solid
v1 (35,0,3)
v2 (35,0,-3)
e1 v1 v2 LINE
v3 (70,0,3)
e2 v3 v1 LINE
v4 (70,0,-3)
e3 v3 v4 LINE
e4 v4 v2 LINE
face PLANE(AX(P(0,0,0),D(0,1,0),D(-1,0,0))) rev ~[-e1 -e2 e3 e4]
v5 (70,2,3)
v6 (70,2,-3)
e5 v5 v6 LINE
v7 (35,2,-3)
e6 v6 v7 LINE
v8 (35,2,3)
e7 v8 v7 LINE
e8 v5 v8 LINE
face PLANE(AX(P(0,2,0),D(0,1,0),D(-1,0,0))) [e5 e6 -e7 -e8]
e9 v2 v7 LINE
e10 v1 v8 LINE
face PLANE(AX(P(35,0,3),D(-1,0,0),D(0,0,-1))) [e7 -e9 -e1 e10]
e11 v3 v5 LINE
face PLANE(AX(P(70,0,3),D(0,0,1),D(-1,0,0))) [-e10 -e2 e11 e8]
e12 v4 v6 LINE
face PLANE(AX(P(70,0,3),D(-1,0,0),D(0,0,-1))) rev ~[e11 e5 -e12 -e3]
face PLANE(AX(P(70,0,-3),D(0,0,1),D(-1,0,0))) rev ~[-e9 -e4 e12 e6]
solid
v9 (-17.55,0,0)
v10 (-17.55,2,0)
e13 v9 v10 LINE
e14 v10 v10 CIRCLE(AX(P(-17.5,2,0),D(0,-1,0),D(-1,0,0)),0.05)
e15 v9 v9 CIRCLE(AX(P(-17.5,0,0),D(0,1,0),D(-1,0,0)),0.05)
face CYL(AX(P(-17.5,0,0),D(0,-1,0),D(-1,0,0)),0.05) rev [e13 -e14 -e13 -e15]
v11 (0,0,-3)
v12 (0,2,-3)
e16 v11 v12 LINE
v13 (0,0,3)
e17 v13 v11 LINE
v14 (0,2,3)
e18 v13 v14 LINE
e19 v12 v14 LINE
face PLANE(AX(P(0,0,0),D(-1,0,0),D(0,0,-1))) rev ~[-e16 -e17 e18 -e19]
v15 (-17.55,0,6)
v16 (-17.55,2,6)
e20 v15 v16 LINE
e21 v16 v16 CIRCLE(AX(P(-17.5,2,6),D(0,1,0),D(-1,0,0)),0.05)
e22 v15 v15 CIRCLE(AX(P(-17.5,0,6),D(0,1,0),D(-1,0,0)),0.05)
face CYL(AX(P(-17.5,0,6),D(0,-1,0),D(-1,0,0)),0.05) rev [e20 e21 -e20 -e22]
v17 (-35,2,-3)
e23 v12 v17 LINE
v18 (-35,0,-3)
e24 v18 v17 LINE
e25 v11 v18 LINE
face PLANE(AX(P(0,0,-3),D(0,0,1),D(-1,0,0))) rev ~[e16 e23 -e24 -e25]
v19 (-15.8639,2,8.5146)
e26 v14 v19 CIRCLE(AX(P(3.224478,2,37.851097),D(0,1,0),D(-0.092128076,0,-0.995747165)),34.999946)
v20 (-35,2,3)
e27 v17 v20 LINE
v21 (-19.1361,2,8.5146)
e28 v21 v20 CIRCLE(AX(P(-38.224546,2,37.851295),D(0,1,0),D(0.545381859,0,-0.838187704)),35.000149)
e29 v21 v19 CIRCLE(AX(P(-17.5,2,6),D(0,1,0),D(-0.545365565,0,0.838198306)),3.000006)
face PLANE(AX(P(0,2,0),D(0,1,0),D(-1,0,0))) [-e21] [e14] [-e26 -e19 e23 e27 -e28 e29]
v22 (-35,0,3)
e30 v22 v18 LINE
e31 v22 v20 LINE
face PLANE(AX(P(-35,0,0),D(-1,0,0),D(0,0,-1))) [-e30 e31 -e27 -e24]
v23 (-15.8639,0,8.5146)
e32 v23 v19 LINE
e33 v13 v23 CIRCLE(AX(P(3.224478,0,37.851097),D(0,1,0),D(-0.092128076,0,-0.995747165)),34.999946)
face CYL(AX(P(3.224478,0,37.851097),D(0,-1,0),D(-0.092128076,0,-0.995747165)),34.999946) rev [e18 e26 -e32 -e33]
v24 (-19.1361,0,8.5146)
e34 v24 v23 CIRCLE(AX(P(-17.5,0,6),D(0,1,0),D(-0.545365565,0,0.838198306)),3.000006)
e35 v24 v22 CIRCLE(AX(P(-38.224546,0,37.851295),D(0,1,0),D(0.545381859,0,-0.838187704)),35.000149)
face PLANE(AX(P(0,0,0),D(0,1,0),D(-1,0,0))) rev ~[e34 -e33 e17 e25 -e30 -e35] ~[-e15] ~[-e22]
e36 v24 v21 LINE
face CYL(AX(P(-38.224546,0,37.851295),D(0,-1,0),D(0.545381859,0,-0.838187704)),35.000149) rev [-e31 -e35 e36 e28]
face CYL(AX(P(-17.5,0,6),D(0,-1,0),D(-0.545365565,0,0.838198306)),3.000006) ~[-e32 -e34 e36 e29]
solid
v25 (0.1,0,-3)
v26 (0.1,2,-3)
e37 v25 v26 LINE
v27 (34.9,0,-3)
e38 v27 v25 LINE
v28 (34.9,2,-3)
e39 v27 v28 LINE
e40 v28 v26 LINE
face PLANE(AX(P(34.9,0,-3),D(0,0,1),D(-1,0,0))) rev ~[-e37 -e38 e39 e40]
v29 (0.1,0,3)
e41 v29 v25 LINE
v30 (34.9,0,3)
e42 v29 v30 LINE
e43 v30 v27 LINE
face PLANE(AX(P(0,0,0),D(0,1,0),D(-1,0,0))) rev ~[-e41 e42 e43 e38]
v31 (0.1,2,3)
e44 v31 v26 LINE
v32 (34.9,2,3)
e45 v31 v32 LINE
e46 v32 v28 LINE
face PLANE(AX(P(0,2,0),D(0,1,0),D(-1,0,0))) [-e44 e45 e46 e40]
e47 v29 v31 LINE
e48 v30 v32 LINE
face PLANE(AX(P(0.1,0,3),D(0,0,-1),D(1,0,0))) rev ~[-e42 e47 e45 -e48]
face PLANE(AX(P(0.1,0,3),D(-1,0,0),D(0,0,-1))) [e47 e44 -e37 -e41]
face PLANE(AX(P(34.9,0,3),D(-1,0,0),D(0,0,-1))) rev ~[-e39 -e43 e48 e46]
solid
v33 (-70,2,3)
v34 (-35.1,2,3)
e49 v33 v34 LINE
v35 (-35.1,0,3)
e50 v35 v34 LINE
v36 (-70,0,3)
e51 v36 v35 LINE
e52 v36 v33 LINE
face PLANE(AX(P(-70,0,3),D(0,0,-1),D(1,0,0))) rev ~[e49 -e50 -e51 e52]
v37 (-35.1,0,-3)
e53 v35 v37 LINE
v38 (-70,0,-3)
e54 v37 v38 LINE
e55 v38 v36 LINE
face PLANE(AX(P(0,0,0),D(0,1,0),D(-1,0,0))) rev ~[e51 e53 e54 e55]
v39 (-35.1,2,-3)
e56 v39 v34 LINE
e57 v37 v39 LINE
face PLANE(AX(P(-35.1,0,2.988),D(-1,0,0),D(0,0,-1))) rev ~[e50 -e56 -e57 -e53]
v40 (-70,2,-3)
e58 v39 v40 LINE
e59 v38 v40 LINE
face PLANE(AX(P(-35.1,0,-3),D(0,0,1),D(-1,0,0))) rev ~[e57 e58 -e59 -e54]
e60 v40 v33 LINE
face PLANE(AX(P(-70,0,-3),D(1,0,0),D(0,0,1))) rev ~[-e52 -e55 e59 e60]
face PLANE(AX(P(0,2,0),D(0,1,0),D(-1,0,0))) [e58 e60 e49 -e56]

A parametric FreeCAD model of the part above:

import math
import FreeCAD as App
import Part
import Sketcher

V = App.Vector
Q = App.Units.Quantity

doc = App.newDocument("Part")
body = doc.addObject("PartDesign::Body", "Body")
body.AllowCompound = True

sketch1 = body.newObject("Sketcher::SketchObject", "Sketch")
sketch1.AttachmentSupport = (doc.getObject("XZ_Plane"), [""])
sketch1.MapMode = "FlatFace"
sketch1.addGeometry([
    Part.LineSegment(V(35, 3, 0), V(70, 3, 0)),
    Part.LineSegment(V(70, 3, 0), V(70, -3, 0)),
    Part.LineSegment(V(70, -3, 0), V(35, -3, 0)),
    Part.LineSegment(V(35, -3, 0), V(35, 3, 0)),
    Part.LineSegment(V(-35.1, 3, 0), V(-35.1, -3, 0)),
    Part.LineSegment(V(-35.1, -3, 0), V(-70, -3, 0)),
    Part.LineSegment(V(-70, -3, 0), V(-70, 3, 0)),
    Part.LineSegment(V(-70, 3, 0), V(-35.1, 3, 0)),
    Part.LineSegment(V(0, -3, 0), V(-35, -3, 0)),
    Part.LineSegment(V(-35, -3, 0), V(-35, 3, 0)),
    Part.ArcOfCircle(Part.Circle(V(-38.22, 37.85, 0), V(0, 0, 1), 35), math.radians(-85), math.radians(-57)),
    Part.ArcOfCircle(Part.Circle(V(-17.5, 6, 0), V(0, 0, 1), 3), math.radians(57), math.radians(123)),
    Part.ArcOfCircle(Part.Circle(V(3.22, 37.85, 0), V(0, 0, 1), 35), math.radians(-123), math.radians(-95)),
    Part.LineSegment(V(0, 3, 0), V(0, -3, 0)),
    Part.Circle(V(-17.5, 0, 0), V(0, 0, 1), 0.05),
    Part.Circle(V(-17.5, 6, 0), V(0, 0, 1), 0.05),
    Part.LineSegment(V(34.9, 3, 0), V(34.9, -3, 0)),
    Part.LineSegment(V(34.9, -3, 0), V(0.1, -3, 0)),
    Part.LineSegment(V(0.1, -3, 0), V(0.1, 3, 0)),
    Part.LineSegment(V(0.1, 3, 0), V(34.9, 3, 0)),
], False)
sketch1.addConstraint([
    Sketcher.Constraint("Coincident", 0, 2, 1, 1),
    Sketcher.Constraint("Coincident", 1, 2, 2, 1),
    Sketcher.Constraint("Coincident", 2, 2, 3, 1),
    Sketcher.Constraint("Coincident", 3, 2, 0, 1),
    Sketcher.Constraint("Coincident", 4, 2, 5, 1),
    Sketcher.Constraint("Coincident", 5, 2, 6, 1),
    Sketcher.Constraint("Coincident", 6, 2, 7, 1),
    Sketcher.Constraint("Coincident", 7, 2, 4, 1),
    Sketcher.Constraint("Coincident", 8, 2, 9, 1),
    Sketcher.Constraint("Coincident", 9, 2, 10, 1),
    Sketcher.Constraint("Tangent", 10, 2, 11, 2),
    Sketcher.Constraint("Tangent", 11, 1, 12, 1),
    Sketcher.Constraint("Coincident", 12, 2, 13, 1),
    Sketcher.Constraint("Coincident", 13, 2, 8, 1),
    Sketcher.Constraint("Coincident", 16, 2, 17, 1),
    Sketcher.Constraint("Coincident", 17, 2, 18, 1),
    Sketcher.Constraint("Coincident", 18, 2, 19, 1),
    Sketcher.Constraint("Coincident", 19, 2, 16, 1),
    Sketcher.Constraint("Horizontal", 0),
    Sketcher.Constraint("Vertical", 1),
    Sketcher.Constraint("Horizontal", 2),
    Sketcher.Constraint("Vertical", 3),
    Sketcher.Constraint("Vertical", 4),
    Sketcher.Constraint("Horizontal", 5),
    Sketcher.Constraint("Vertical", 6),
    Sketcher.Constraint("Horizontal", 7),
    Sketcher.Constraint("Horizontal", 8),
    Sketcher.Constraint("Vertical", 9),
    Sketcher.Constraint("Vertical", 13),
    Sketcher.Constraint("Vertical", 16),
    Sketcher.Constraint("Horizontal", 17),
    Sketcher.Constraint("Vertical", 18),
    Sketcher.Constraint("Horizontal", 19),
    Sketcher.Constraint("Coincident", 15, 3, 11, 3),
    Sketcher.Constraint("Equal", 10, 12),
    Sketcher.Constraint("Equal", 14, 15),
    Sketcher.Constraint("Symmetric", 0, 2, 5, 2, -1, 1),
    Sketcher.Constraint("Symmetric", 3, 2, 8, 2, -1, 1),
    Sketcher.Constraint("Symmetric", 12, 2, 13, 2, -1, 1),
    Sketcher.Constraint("PointOnObject", 14, 3, -1),
    Sketcher.Constraint("Horizontal", 10, 3, 12, 3),
    Sketcher.Constraint("Horizontal", 2, 2, 4, 2),
    Sketcher.Constraint("Horizontal", 3, 2, 6, 2),
    Sketcher.Constraint("Horizontal", 7, 2, 9, 2),
    Sketcher.Constraint("Horizontal", 13, 2, 16, 2),
    Sketcher.Constraint("Horizontal", 12, 2, 18, 2),
    Sketcher.Constraint("Vertical", 11, 3, 14, 3),
    Sketcher.Constraint("Equal", 2, 8),
    Sketcher.Constraint("Radius", 10, Q("35 mm")),
    Sketcher.Constraint("Radius", 11, Q("3 mm")),
    Sketcher.Constraint("Diameter", 14, Q("0.1 mm")),
    Sketcher.Constraint("DistanceX", 0, 1, 0, 2, Q("35 mm")),
    Sketcher.Constraint("DistanceY", 1, 2, 1, 1, Q("6 mm")),
    Sketcher.Constraint("DistanceY", -1, 1, 11, 3, Q("6 mm")),
    Sketcher.Constraint("DistanceX", -1, 1, 17, 2, Q("0.1 mm")),
    Sketcher.Constraint("DistanceX", 4, 2, 8, 2, Q("0.1 mm")),
    Sketcher.Constraint("DistanceX", 16, 2, 2, 2, Q("0.1 mm")),
])
pad1 = body.newObject("PartDesign::Pad", "Pad")
pad1.Profile = sketch1
pad1.Length = 2
pad1.Reversed = True

doc.recompute()
